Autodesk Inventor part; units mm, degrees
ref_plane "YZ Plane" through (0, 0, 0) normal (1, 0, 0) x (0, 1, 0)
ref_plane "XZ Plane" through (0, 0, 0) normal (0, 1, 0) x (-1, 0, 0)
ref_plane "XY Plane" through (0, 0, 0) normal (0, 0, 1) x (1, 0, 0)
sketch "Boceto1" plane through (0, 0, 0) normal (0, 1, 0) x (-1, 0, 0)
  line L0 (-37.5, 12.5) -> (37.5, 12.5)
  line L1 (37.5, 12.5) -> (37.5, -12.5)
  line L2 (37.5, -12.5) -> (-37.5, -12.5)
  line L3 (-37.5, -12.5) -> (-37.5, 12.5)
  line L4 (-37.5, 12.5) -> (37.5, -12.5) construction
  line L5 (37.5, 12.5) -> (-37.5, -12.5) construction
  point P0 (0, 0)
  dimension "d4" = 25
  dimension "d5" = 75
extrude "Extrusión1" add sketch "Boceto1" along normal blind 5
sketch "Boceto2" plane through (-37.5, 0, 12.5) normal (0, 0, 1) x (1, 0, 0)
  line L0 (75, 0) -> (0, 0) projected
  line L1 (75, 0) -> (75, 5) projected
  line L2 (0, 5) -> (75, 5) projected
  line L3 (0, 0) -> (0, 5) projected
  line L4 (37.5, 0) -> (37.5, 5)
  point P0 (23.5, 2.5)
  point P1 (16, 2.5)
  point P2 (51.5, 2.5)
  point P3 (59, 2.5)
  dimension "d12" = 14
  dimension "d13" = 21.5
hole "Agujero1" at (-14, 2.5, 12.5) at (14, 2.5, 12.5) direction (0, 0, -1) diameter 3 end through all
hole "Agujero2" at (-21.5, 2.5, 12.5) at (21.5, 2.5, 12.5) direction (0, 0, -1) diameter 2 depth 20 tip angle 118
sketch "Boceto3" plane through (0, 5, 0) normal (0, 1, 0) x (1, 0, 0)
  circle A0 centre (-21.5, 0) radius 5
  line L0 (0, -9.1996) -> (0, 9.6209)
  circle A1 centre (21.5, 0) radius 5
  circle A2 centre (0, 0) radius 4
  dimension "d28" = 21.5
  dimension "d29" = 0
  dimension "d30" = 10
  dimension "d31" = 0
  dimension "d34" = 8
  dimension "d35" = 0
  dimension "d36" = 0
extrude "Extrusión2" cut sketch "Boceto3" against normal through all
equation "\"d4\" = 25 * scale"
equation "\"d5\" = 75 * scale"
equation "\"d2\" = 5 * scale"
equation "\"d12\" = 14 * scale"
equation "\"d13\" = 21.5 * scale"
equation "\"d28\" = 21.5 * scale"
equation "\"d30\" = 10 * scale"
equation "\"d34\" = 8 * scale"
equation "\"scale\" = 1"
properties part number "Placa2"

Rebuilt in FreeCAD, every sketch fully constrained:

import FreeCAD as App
import Part
import Sketcher
from FreeCAD import Vector
Q = App.Units.Quantity

doc = App.newDocument("Part")
body = doc.addObject("PartDesign::Body", "Body")

# Sketch on XZ plane
sketch1 = body.newObject("Sketcher::SketchObject", "Sketch")
sketch1.AttachmentSupport = (doc.getObject("XZ_Plane"), [""])
sketch1.MapMode = "FlatFace"
sketch1.addGeometry([
    Part.LineSegment(Vector(-38, 12, 0), Vector(38, 12, 0)),
    Part.LineSegment(Vector(38, 12, 0), Vector(38, -12, 0)),
    Part.LineSegment(Vector(38, -12, 0), Vector(-38, -12, 0)),
    Part.LineSegment(Vector(-38, -12, 0), Vector(-38, 12, 0)),
], False)
sketch1.addConstraint([
    Sketcher.Constraint("Coincident", 0, 2, 1, 1),
    Sketcher.Constraint("Coincident", 1, 2, 2, 1),
    Sketcher.Constraint("Coincident", 2, 2, 3, 1),
    Sketcher.Constraint("Coincident", 3, 2, 0, 1),
    Sketcher.Constraint("Horizontal", 0),
    Sketcher.Constraint("Vertical", 1),
    Sketcher.Constraint("Horizontal", 2),
    Sketcher.Constraint("Vertical", 3),
    Sketcher.Constraint("Symmetric", 0, 2, 2, 2, -1, 1),
    Sketcher.Constraint("DistanceX", 0, 1, 0, 2, Q("75 mm")),
    Sketcher.Constraint("DistanceY", 1, 2, 1, 1, Q("25 mm")),
])
pad1 = body.newObject("PartDesign::Pad", "Pad")
pad1.Profile = sketch1
pad1.Length = 5
pad1.Reversed = True

# Sketch on XY plane
sketch2 = body.newObject("Sketcher::SketchObject", "Sketch001")
sketch2.AttachmentSupport = (doc.getObject("XY_Plane"), [""])
sketch2.MapMode = "FlatFace"
sketch2.AttachmentOffset = App.Placement(Vector(0, 0, 12.5), App.Rotation())
sketch2.addGeometry([
    Part.Circle(Vector(-14, 2.5, 0), Vector(0, 0, 1), 1.5),
    Part.Circle(Vector(14, 2.5, 0), Vector(0, 0, 1), 1.5),
], False)
sketch2.addConstraint([
    Sketcher.Constraint("Equal", 0, 1),
    Sketcher.Constraint("Symmetric", 0, 3, 1, 3, -2),
    Sketcher.Constraint("Diameter", 0, Q("3 mm")),
    Sketcher.Constraint("DistanceX", 0, 3, -1, 1, Q("14 mm")),
    Sketcher.Constraint("DistanceY", -1, 1, 0, 3, Q("2.5 mm")),
])
doc.recompute()
hole = body.newObject("PartDesign::Hole", "Hole")
hole.Profile = sketch2
hole.ThreadType = "None"
hole.Diameter = 3
hole.DepthType = "ThroughAll"

# Sketch on XY plane
sketch3 = body.newObject("Sketcher::SketchObject", "Sketch002")
sketch3.AttachmentSupport = (doc.getObject("XY_Plane"), [""])
sketch3.MapMode = "FlatFace"
sketch3.AttachmentOffset = App.Placement(Vector(0, 0, 12.5), App.Rotation())
sketch3.addGeometry([
    Part.Circle(Vector(-21.5, 2.5, 0), Vector(0, 0, 1), 1),
    Part.Circle(Vector(21.5, 2.5, 0), Vector(0, 0, 1), 1),
], False)
sketch3.addConstraint([
    Sketcher.Constraint("Equal", 0, 1),
    Sketcher.Constraint("Symmetric", 0, 3, 1, 3, -2),
    Sketcher.Constraint("Diameter", 0, Q("2 mm")),
    Sketcher.Constraint("DistanceX", 0, 3, 1, 3, Q("43 mm")),
    Sketcher.Constraint("DistanceY", -1, 1, 0, 3, Q("2.5 mm")),
])
doc.recompute()
hole2 = body.newObject("PartDesign::Hole", "Hole001")
hole2.Profile = sketch3
hole2.ThreadType = "None"
hole2.Diameter = 2
hole2.DepthType = "Dimension"
hole2.Depth = 20
hole2.DrillPoint = "Angled"
hole2.DrillPointAngle = 118

# Sketch on XZ plane
sketch4 = body.newObject("Sketcher::SketchObject", "Sketch003")
sketch4.AttachmentSupport = (doc.getObject("XZ_Plane"), [""])
sketch4.MapMode = "FlatFace"
sketch4.AttachmentOffset = App.Placement(Vector(0, 0, -5), App.Rotation())
sketch4.addGeometry([
    Part.Circle(Vector(-21.5, 0, 0), Vector(0, 0, 1), 5),
    Part.Circle(Vector(0, 0, 0), Vector(0, 0, 1), 4),
    Part.Circle(Vector(21.5, 0, 0), Vector(0, 0, 1), 5),
], False)
sketch4.addConstraint([
    Sketcher.Constraint("Coincident", 1, 3, -1, 1),
    Sketcher.Constraint("Equal", 0, 2),
    Sketcher.Constraint("Symmetric", 0, 3, 2, 3, -1, 1),
    Sketcher.Constraint("PointOnObject", 0, 3, -1),
    Sketcher.Constraint("Diameter", 0, Q("10 mm")),
    Sketcher.Constraint("Diameter", 1, Q("8 mm")),
    Sketcher.Constraint("DistanceX", 0, 3, -1, 1, Q("21.5 mm")),
])
pocket1 = body.newObject("PartDesign::Pocket", "Pocket")
pocket1.Profile = sketch4
pocket1.Type = "ThroughAll"
pocket1.Reversed = True

doc.recompute()
